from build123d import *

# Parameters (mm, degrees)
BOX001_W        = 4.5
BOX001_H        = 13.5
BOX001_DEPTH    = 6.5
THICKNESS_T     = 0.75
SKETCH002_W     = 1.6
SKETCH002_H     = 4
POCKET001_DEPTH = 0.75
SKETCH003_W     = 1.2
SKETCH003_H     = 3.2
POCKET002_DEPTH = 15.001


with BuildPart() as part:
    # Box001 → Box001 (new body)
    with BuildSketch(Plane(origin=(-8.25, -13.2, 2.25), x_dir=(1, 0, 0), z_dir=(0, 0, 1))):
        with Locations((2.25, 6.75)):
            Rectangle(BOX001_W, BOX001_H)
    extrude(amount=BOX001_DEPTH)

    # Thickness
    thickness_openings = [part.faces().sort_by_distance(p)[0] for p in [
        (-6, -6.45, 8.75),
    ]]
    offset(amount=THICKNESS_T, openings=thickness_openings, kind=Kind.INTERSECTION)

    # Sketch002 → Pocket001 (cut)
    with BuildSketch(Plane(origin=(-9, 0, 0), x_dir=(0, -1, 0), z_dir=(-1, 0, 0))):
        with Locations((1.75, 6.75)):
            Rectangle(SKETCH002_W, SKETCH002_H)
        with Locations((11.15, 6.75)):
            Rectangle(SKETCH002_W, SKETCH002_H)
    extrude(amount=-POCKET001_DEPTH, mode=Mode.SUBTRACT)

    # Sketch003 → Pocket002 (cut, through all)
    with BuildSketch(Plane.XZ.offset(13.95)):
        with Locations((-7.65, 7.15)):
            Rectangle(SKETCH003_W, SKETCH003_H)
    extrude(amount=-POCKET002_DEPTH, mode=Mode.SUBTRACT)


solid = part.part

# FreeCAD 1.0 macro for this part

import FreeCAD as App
import Part
import Sketcher


def faces_at(feature, points):
    """Names of the faces that lie closest to the given points."""
    faces = feature.Shape.Faces
    near = lambda p: min(range(len(faces)), key=lambda i: faces[i].distToShape(Part.Vertex(*p))[0])
    return sorted({f"Face{near(p) + 1}" for p in points})


def add_polygon(sketch, points):
    """Adds a closed chain of lines whose ends are joined by coincident constraints."""
    first, n = sketch.GeometryCount, len(points)
    for a, b in zip(points, points[1:] + points[:1]):
        sketch.addGeometry(Part.LineSegment(App.Vector(*a, 0), App.Vector(*b, 0)), False)
    for i in range(n):
        sketch.addConstraint(Sketcher.Constraint("Coincident", first + i, 2, first + (i + 1) % n, 1))

doc = App.newDocument("Part")
params = doc.addObject("Spreadsheet::Sheet", "Params")
for row, (alias, value) in enumerate([
    ("sketch1_width", "4.5 mm"),
    ("sketch1_height", "13.5 mm"),
    ("pad1_length", "6.5 mm"),
    ("thickness_wall", "0.75 mm"),
    ("sketch2_height", "4 mm"),
    ("sketch2_width", "1.6 mm"),
    ("pocket1_length", "0.75 mm"),
    ("sketch3_width", "1.2 mm"),
    ("sketch3_height", "3.2 mm"),
], start=1):
    params.set(f"A{row}", alias)
    params.set(f"B{row}", "=" + value)
    params.setAlias(f"B{row}", alias)

body = doc.addObject("PartDesign::Body", "Body")

# Sketch on XY plane
sketch1 = body.newObject("Sketcher::SketchObject", "Sketch")
sketch1.AttachmentSupport = (doc.getObject("XY_Plane"), [""])
sketch1.MapMode = "FlatFace"
sketch1.AttachmentOffset = App.Placement(App.Vector(0, 0, 2.25), App.Rotation())
add_polygon(sketch1, [(-8.2, 0.3), (-8.2, -13.2), (-3.8, -13.2), (-3.8, 0.3)])  # lines 0-3
sketch1.addConstraint([
    Sketcher.Constraint("Vertical", 0),
    Sketcher.Constraint("Horizontal", 1),
    Sketcher.Constraint("Vertical", 2),
    Sketcher.Constraint("Horizontal", 3),
    Sketcher.Constraint("DistanceX", 1, 1, 1, 2, 4.5),
    Sketcher.Constraint("DistanceY", 0, 2, 0, 1, 13.5),
    Sketcher.Constraint("DistanceY", 0, 2, -1, 1, 13.2),
    Sketcher.Constraint("DistanceX", 0, 2, -1, 1, 8.25),
])
sketch1.setExpression("Constraints[8]", "Params.sketch1_width")
sketch1.setExpression("Constraints[9]", "Params.sketch1_height")
pad1 = body.newObject("PartDesign::Pad", "Pad")
pad1.Profile = sketch1
pad1.setExpression("Length", "Params.pad1_length")
doc.recompute()

thickness = body.newObject("PartDesign::Thickness", "Thickness")
thickness.Base = (pad1, faces_at(pad1, [(-6, -6.45, 8.75)]))
thickness.setExpression("Value", "Params.thickness_wall")
thickness.Reversed = False
thickness.Join = "Intersection"

# Sketch on YZ plane
sketch2 = body.newObject("Sketcher::SketchObject", "Sketch001")
sketch2.AttachmentSupport = (doc.getObject("YZ_Plane"), [""])
sketch2.MapMode = "FlatFace"
sketch2.AttachmentOffset = App.Placement(App.Vector(0, 0, -9), App.Rotation())
add_polygon(sketch2, [(-0.9, 8.8), (-0.9, 4.8), (-2.5, 4.8), (-2.5, 8.8)])  # lines 0-3
add_polygon(sketch2, [(-10.3, 8.8), (-10.3, 4.8), (-11.9, 4.8), (-11.9, 8.8)])  # lines 4-7
sketch2.addConstraint([
    Sketcher.Constraint("Vertical", 0),
    Sketcher.Constraint("Horizontal", 1),
    Sketcher.Constraint("Vertical", 2),
    Sketcher.Constraint("Horizontal", 3),
    Sketcher.Constraint("Vertical", 4),
    Sketcher.Constraint("Horizontal", 5),
    Sketcher.Constraint("Vertical", 6),
    Sketcher.Constraint("Horizontal", 7),
    Sketcher.Constraint("Horizontal", 1, 2, 4, 2),
    Sketcher.Constraint("Horizontal", 3, 2, 6, 2),
    Sketcher.Constraint("Equal", 3, 5),
    Sketcher.Constraint("DistanceY", 0, 2, 0, 1, 4.0),
    Sketcher.Constraint("DistanceX", 1, 2, 1, 1, 1.6),
    Sketcher.Constraint("DistanceX", 5, 2, 0, 2, 11.0),
    Sketcher.Constraint("DistanceX", 0, 2, -1, 1, 0.95),
    Sketcher.Constraint("DistanceY", -1, 1, 0, 2, 4.75),
])
sketch2.setExpression("Constraints[19]", "Params.sketch2_height")
sketch2.setExpression("Constraints[20]", "Params.sketch2_width")
pocket1 = body.newObject("PartDesign::Pocket", "Pocket")
pocket1.Profile = sketch2
pocket1.setExpression("Length", "Params.pocket1_length")
pocket1.Reversed = True

# Sketch on XZ plane
sketch3 = body.newObject("Sketcher::SketchObject", "Sketch002")
sketch3.AttachmentSupport = (doc.getObject("XZ_Plane"), [""])
sketch3.MapMode = "FlatFace"
sketch3.AttachmentOffset = App.Placement(App.Vector(0, 0, 13.95), App.Rotation())
add_polygon(sketch3, [(-8.2, 8.8), (-8.2, 5.5), (-7, 5.5), (-7, 8.8)])  # lines 0-3
sketch3.addConstraint([
    Sketcher.Constraint("Vertical", 0),
    Sketcher.Constraint("Horizontal", 1),
    Sketcher.Constraint("Vertical", 2),
    Sketcher.Constraint("Horizontal", 3),
    Sketcher.Constraint("DistanceX", 1, 1, 1, 2, 1.2),
    Sketcher.Constraint("DistanceY", 0, 2, 0, 1, 3.2),
    Sketcher.Constraint("DistanceX", 0, 2, -1, 1, 8.25),
    Sketcher.Constraint("DistanceY", -1, 1, 0, 2, 5.55),
])
sketch3.setExpression("Constraints[8]", "Params.sketch3_width")
sketch3.setExpression("Constraints[9]", "Params.sketch3_height")
pocket2 = body.newObject("PartDesign::Pocket", "Pocket001")
pocket2.Profile = sketch3
pocket2.Type = "ThroughAll"

doc.recompute()
